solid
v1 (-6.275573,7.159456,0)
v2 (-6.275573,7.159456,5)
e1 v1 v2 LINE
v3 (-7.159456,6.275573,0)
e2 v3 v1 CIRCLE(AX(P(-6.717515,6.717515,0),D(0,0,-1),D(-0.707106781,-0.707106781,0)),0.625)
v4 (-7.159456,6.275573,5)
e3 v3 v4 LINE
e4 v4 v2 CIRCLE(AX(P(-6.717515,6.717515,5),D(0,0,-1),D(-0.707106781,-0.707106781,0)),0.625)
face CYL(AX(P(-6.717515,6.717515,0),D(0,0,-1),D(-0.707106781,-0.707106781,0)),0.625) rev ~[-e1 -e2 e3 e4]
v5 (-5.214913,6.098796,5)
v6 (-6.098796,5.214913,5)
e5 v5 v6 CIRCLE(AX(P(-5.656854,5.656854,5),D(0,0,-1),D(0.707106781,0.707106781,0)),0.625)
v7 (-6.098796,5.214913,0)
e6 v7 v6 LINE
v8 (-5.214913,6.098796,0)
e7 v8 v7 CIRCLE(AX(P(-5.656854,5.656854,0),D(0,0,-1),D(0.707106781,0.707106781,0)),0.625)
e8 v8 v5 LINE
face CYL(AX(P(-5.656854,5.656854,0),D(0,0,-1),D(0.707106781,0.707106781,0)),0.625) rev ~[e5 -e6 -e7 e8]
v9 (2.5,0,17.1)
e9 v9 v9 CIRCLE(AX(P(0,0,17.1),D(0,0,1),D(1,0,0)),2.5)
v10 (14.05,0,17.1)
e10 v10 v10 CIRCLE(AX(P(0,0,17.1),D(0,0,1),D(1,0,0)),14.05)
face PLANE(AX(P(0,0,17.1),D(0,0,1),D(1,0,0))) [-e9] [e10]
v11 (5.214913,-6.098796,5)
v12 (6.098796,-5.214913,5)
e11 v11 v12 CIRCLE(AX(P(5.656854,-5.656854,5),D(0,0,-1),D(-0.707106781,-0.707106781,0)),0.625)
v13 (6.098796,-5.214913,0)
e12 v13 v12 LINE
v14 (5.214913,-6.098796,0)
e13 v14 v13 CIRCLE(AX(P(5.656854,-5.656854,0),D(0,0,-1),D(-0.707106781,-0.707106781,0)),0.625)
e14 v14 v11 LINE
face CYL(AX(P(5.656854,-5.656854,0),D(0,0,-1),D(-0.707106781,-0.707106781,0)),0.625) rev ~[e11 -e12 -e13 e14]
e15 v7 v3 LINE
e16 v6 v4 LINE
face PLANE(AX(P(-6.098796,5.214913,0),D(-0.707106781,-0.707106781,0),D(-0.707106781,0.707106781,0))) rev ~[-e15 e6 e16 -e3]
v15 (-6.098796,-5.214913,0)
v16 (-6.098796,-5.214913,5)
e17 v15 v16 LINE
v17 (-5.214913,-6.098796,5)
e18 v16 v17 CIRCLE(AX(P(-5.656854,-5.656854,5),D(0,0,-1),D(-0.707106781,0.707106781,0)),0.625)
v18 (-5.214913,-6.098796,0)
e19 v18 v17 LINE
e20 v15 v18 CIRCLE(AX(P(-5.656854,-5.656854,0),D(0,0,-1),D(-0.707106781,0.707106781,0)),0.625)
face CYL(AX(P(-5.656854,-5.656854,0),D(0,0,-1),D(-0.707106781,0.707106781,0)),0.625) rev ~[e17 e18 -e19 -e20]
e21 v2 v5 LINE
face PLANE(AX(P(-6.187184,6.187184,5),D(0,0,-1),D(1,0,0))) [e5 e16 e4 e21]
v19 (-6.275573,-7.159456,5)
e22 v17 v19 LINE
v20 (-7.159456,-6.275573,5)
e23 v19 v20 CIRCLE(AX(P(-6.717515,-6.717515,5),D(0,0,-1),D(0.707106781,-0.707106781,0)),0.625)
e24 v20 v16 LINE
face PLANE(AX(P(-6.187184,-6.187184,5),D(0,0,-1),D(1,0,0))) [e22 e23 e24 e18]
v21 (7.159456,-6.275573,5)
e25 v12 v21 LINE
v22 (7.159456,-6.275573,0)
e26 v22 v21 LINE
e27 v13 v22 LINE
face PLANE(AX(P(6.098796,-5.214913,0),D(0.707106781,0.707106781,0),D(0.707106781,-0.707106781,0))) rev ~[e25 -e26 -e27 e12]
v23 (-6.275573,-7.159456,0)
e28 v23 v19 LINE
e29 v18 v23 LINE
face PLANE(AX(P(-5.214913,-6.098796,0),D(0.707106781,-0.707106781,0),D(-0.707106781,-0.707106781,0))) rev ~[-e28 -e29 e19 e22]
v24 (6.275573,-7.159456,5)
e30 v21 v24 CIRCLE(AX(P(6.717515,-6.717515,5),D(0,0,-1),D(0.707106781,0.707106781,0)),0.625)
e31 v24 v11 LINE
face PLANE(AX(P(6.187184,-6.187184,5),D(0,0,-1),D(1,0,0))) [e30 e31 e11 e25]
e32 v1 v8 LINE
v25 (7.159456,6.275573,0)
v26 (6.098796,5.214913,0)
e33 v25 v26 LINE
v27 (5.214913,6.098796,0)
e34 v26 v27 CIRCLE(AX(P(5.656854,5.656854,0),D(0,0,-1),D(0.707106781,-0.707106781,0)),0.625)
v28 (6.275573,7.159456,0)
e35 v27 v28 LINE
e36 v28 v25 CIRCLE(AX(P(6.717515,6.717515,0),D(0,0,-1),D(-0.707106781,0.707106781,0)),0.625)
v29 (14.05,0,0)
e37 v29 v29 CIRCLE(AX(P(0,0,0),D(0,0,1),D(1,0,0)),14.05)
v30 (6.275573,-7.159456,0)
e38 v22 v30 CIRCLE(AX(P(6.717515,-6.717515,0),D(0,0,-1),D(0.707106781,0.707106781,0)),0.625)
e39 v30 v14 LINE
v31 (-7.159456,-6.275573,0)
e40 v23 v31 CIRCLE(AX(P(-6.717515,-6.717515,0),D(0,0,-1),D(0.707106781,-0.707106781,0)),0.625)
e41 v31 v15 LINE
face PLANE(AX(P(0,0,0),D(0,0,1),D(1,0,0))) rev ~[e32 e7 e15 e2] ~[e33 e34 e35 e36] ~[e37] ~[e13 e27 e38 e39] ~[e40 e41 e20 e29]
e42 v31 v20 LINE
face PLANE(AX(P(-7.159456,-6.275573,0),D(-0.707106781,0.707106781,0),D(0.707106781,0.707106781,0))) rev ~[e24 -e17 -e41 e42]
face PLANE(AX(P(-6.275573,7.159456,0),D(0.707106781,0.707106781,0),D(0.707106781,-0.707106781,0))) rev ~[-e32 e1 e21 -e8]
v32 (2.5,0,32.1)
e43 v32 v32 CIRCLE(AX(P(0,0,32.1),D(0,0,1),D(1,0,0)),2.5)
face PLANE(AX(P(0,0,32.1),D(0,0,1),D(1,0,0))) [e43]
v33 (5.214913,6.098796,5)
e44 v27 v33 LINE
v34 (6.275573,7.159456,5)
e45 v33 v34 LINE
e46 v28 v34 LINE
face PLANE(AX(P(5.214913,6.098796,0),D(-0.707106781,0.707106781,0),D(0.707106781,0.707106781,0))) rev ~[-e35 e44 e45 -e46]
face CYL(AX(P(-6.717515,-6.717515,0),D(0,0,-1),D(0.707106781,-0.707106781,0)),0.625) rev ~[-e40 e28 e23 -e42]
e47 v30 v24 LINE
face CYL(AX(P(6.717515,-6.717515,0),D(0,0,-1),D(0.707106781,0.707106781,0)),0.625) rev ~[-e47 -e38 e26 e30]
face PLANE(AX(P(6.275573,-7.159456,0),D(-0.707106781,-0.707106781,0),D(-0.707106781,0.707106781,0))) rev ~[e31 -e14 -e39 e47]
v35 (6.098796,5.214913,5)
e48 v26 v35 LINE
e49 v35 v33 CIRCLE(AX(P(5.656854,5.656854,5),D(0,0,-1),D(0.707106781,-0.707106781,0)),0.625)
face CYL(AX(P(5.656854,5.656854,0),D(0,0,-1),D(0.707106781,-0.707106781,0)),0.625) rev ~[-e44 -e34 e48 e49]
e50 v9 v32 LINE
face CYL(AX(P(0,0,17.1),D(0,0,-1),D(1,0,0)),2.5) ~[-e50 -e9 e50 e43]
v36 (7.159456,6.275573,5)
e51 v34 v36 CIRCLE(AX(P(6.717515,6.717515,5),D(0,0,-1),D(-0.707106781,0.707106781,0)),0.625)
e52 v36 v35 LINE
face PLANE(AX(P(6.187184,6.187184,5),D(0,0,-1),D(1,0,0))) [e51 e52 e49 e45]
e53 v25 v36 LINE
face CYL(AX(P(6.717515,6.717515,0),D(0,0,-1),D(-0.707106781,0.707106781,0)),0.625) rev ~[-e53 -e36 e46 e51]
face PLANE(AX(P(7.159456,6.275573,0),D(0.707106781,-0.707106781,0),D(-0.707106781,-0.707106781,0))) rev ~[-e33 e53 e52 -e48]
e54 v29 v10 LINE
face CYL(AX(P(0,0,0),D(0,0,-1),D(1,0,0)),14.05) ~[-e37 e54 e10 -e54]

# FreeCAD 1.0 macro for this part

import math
import FreeCAD as App
import Part
import Sketcher
Q = App.Units.Quantity

doc = App.newDocument("Part")
body = doc.addObject("PartDesign::Body", "Body")

sketch1 = body.newObject("Sketcher::SketchObject", "Sketch")
sketch1.AttachmentSupport = (doc.getObject("XY_Plane"), [""])
sketch1.MapMode = "FlatFace"
sketch1.addGeometry(Part.Circle(App.Vector(0, 0, 0), App.Vector(0, 0, 1), 14), False)
sketch1.addConstraint([
    Sketcher.Constraint("Coincident", 0, 3, -1, 1),
    Sketcher.Constraint("Diameter", 0, Q("28.1 mm")),
])
pad1 = body.newObject("PartDesign::Pad", "Pad")
pad1.Profile = sketch1
pad1.Length = 17.1

sketch2 = body.newObject("Sketcher::SketchObject", "Sketch001")
sketch2.AttachmentSupport = (doc.getObject("XY_Plane"), [""])
sketch2.MapMode = "FlatFace"
sketch2.AttachmentOffset = App.Placement(App.Vector(0, 0, 17.1), App.Rotation())
sketch2.addGeometry(Part.Circle(App.Vector(0, 0, 0), App.Vector(0, 0, 1), 2.5), False)
sketch2.addConstraint([
    Sketcher.Constraint("Coincident", 0, 3, -1, 1),
    Sketcher.Constraint("Diameter", 0, Q("5 mm")),
])
pad2 = body.newObject("PartDesign::Pad", "Pad001")
pad2.Profile = sketch2
pad2.Length = 15

sketch3 = body.newObject("Sketcher::SketchObject", "Sketch002")
sketch3.AttachmentSupport = (doc.getObject("XY_Plane"), [""])
sketch3.MapMode = "FlatFace"
sketch3.addGeometry([
    Part.ArcOfCircle(Part.Circle(App.Vector(-6.7, -6.7, 0), App.Vector(0, 0, 1), 0.6), math.radians(135), math.radians(315)),
    Part.LineSegment(App.Vector(-7.2, -6.3, 0), App.Vector(-6.1, -5.2, 0)),
    Part.ArcOfCircle(Part.Circle(App.Vector(-5.7, -5.7, 0), App.Vector(0, 0, 1), 0.6), math.radians(-45), math.radians(135)),
    Part.LineSegment(App.Vector(-5.2, -6.1, 0), App.Vector(-6.3, -7.2, 0)),
    Part.ArcOfCircle(Part.Circle(App.Vector(6.7, -6.7, 0), App.Vector(0, 0, 1), 0.6), math.radians(-135), math.radians(45)),
    Part.LineSegment(App.Vector(6.3, -7.2, 0), App.Vector(5.2, -6.1, 0)),
    Part.ArcOfCircle(Part.Circle(App.Vector(5.7, -5.7, 0), App.Vector(0, 0, 1), 0.6), math.radians(45), math.radians(225)),
    Part.LineSegment(App.Vector(6.1, -5.2, 0), App.Vector(7.2, -6.3, 0)),
    Part.ArcOfCircle(Part.Circle(App.Vector(6.7, 6.7, 0), App.Vector(0, 0, 1), 0.6), math.radians(-45), math.radians(135)),
    Part.LineSegment(App.Vector(7.2, 6.3, 0), App.Vector(6.1, 5.2, 0)),
    Part.ArcOfCircle(Part.Circle(App.Vector(5.7, 5.7, 0), App.Vector(0, 0, 1), 0.6), math.radians(135), math.radians(315)),
    Part.LineSegment(App.Vector(5.2, 6.1, 0), App.Vector(6.3, 7.2, 0)),
    Part.ArcOfCircle(Part.Circle(App.Vector(-6.7, 6.7, 0), App.Vector(0, 0, 1), 0.6), math.radians(45), math.radians(225)),
    Part.LineSegment(App.Vector(-6.3, 7.2, 0), App.Vector(-5.2, 6.1, 0)),
    Part.ArcOfCircle(Part.Circle(App.Vector(-5.7, 5.7, 0), App.Vector(0, 0, 1), 0.6), math.radians(-135), math.radians(45)),
    Part.LineSegment(App.Vector(-6.1, 5.2, 0), App.Vector(-7.2, 6.3, 0)),
], False)
sketch3.addConstraint([
    Sketcher.Constraint("Tangent", 0, 1, 1, 1),
    Sketcher.Constraint("Tangent", 1, 2, 2, 2),
    Sketcher.Constraint("Tangent", 2, 1, 3, 1),
    Sketcher.Constraint("Tangent", 3, 2, 0, 2),
    Sketcher.Constraint("Tangent", 4, 1, 5, 1),
    Sketcher.Constraint("Tangent", 5, 2, 6, 2),
    Sketcher.Constraint("Tangent", 6, 1, 7, 1),
    Sketcher.Constraint("Tangent", 7, 2, 4, 2),
    Sketcher.Constraint("Tangent", 8, 1, 9, 1),
    Sketcher.Constraint("Tangent", 9, 2, 10, 2),
    Sketcher.Constraint("Tangent", 10, 1, 11, 1),
    Sketcher.Constraint("Tangent", 11, 2, 8, 2),
    Sketcher.Constraint("Tangent", 12, 1, 13, 1),
    Sketcher.Constraint("Tangent", 13, 2, 14, 2),
    Sketcher.Constraint("Tangent", 14, 1, 15, 1),
    Sketcher.Constraint("Tangent", 15, 2, 12, 2),
    Sketcher.Constraint("Equal", 0, 2),
    Sketcher.Constraint("Equal", 2, 4),
    Sketcher.Constraint("Equal", 4, 6),
    Sketcher.Constraint("Equal", 6, 8),
    Sketcher.Constraint("Equal", 8, 10),
    Sketcher.Constraint("Equal", 10, 12),
    Sketcher.Constraint("Equal", 12, 14),
    Sketcher.Constraint("Symmetric", 0, 3, 8, 3, -1, 1),
    Sketcher.Constraint("Symmetric", 2, 3, 10, 3, -1, 1),
    Sketcher.Constraint("Symmetric", 4, 3, 12, 3, -1, 1),
    Sketcher.Constraint("Symmetric", 6, 3, 14, 3, -1, 1),
    Sketcher.Constraint("Symmetric", 0, 3, 4, 3, -2),
    Sketcher.Constraint("Symmetric", 2, 3, 6, 3, -2),
    Sketcher.Constraint("Perpendicular", 3, 5),
    Sketcher.Constraint("Radius", 0, Q("0.625 mm")),
    Sketcher.Constraint("Distance", 1, Q("1.5 mm")),
    Sketcher.Constraint("DistanceX", 2, 3, 4, 3, Q("12.374369 mm")),
    Sketcher.Constraint("DistanceY", 6, 3, 8, 3, Q("12.374369 mm")),
])
pocket1 = body.newObject("PartDesign::Pocket", "Pocket")
pocket1.Profile = sketch3
pocket1.Length = 5
pocket1.Reversed = True

doc.recompute()
